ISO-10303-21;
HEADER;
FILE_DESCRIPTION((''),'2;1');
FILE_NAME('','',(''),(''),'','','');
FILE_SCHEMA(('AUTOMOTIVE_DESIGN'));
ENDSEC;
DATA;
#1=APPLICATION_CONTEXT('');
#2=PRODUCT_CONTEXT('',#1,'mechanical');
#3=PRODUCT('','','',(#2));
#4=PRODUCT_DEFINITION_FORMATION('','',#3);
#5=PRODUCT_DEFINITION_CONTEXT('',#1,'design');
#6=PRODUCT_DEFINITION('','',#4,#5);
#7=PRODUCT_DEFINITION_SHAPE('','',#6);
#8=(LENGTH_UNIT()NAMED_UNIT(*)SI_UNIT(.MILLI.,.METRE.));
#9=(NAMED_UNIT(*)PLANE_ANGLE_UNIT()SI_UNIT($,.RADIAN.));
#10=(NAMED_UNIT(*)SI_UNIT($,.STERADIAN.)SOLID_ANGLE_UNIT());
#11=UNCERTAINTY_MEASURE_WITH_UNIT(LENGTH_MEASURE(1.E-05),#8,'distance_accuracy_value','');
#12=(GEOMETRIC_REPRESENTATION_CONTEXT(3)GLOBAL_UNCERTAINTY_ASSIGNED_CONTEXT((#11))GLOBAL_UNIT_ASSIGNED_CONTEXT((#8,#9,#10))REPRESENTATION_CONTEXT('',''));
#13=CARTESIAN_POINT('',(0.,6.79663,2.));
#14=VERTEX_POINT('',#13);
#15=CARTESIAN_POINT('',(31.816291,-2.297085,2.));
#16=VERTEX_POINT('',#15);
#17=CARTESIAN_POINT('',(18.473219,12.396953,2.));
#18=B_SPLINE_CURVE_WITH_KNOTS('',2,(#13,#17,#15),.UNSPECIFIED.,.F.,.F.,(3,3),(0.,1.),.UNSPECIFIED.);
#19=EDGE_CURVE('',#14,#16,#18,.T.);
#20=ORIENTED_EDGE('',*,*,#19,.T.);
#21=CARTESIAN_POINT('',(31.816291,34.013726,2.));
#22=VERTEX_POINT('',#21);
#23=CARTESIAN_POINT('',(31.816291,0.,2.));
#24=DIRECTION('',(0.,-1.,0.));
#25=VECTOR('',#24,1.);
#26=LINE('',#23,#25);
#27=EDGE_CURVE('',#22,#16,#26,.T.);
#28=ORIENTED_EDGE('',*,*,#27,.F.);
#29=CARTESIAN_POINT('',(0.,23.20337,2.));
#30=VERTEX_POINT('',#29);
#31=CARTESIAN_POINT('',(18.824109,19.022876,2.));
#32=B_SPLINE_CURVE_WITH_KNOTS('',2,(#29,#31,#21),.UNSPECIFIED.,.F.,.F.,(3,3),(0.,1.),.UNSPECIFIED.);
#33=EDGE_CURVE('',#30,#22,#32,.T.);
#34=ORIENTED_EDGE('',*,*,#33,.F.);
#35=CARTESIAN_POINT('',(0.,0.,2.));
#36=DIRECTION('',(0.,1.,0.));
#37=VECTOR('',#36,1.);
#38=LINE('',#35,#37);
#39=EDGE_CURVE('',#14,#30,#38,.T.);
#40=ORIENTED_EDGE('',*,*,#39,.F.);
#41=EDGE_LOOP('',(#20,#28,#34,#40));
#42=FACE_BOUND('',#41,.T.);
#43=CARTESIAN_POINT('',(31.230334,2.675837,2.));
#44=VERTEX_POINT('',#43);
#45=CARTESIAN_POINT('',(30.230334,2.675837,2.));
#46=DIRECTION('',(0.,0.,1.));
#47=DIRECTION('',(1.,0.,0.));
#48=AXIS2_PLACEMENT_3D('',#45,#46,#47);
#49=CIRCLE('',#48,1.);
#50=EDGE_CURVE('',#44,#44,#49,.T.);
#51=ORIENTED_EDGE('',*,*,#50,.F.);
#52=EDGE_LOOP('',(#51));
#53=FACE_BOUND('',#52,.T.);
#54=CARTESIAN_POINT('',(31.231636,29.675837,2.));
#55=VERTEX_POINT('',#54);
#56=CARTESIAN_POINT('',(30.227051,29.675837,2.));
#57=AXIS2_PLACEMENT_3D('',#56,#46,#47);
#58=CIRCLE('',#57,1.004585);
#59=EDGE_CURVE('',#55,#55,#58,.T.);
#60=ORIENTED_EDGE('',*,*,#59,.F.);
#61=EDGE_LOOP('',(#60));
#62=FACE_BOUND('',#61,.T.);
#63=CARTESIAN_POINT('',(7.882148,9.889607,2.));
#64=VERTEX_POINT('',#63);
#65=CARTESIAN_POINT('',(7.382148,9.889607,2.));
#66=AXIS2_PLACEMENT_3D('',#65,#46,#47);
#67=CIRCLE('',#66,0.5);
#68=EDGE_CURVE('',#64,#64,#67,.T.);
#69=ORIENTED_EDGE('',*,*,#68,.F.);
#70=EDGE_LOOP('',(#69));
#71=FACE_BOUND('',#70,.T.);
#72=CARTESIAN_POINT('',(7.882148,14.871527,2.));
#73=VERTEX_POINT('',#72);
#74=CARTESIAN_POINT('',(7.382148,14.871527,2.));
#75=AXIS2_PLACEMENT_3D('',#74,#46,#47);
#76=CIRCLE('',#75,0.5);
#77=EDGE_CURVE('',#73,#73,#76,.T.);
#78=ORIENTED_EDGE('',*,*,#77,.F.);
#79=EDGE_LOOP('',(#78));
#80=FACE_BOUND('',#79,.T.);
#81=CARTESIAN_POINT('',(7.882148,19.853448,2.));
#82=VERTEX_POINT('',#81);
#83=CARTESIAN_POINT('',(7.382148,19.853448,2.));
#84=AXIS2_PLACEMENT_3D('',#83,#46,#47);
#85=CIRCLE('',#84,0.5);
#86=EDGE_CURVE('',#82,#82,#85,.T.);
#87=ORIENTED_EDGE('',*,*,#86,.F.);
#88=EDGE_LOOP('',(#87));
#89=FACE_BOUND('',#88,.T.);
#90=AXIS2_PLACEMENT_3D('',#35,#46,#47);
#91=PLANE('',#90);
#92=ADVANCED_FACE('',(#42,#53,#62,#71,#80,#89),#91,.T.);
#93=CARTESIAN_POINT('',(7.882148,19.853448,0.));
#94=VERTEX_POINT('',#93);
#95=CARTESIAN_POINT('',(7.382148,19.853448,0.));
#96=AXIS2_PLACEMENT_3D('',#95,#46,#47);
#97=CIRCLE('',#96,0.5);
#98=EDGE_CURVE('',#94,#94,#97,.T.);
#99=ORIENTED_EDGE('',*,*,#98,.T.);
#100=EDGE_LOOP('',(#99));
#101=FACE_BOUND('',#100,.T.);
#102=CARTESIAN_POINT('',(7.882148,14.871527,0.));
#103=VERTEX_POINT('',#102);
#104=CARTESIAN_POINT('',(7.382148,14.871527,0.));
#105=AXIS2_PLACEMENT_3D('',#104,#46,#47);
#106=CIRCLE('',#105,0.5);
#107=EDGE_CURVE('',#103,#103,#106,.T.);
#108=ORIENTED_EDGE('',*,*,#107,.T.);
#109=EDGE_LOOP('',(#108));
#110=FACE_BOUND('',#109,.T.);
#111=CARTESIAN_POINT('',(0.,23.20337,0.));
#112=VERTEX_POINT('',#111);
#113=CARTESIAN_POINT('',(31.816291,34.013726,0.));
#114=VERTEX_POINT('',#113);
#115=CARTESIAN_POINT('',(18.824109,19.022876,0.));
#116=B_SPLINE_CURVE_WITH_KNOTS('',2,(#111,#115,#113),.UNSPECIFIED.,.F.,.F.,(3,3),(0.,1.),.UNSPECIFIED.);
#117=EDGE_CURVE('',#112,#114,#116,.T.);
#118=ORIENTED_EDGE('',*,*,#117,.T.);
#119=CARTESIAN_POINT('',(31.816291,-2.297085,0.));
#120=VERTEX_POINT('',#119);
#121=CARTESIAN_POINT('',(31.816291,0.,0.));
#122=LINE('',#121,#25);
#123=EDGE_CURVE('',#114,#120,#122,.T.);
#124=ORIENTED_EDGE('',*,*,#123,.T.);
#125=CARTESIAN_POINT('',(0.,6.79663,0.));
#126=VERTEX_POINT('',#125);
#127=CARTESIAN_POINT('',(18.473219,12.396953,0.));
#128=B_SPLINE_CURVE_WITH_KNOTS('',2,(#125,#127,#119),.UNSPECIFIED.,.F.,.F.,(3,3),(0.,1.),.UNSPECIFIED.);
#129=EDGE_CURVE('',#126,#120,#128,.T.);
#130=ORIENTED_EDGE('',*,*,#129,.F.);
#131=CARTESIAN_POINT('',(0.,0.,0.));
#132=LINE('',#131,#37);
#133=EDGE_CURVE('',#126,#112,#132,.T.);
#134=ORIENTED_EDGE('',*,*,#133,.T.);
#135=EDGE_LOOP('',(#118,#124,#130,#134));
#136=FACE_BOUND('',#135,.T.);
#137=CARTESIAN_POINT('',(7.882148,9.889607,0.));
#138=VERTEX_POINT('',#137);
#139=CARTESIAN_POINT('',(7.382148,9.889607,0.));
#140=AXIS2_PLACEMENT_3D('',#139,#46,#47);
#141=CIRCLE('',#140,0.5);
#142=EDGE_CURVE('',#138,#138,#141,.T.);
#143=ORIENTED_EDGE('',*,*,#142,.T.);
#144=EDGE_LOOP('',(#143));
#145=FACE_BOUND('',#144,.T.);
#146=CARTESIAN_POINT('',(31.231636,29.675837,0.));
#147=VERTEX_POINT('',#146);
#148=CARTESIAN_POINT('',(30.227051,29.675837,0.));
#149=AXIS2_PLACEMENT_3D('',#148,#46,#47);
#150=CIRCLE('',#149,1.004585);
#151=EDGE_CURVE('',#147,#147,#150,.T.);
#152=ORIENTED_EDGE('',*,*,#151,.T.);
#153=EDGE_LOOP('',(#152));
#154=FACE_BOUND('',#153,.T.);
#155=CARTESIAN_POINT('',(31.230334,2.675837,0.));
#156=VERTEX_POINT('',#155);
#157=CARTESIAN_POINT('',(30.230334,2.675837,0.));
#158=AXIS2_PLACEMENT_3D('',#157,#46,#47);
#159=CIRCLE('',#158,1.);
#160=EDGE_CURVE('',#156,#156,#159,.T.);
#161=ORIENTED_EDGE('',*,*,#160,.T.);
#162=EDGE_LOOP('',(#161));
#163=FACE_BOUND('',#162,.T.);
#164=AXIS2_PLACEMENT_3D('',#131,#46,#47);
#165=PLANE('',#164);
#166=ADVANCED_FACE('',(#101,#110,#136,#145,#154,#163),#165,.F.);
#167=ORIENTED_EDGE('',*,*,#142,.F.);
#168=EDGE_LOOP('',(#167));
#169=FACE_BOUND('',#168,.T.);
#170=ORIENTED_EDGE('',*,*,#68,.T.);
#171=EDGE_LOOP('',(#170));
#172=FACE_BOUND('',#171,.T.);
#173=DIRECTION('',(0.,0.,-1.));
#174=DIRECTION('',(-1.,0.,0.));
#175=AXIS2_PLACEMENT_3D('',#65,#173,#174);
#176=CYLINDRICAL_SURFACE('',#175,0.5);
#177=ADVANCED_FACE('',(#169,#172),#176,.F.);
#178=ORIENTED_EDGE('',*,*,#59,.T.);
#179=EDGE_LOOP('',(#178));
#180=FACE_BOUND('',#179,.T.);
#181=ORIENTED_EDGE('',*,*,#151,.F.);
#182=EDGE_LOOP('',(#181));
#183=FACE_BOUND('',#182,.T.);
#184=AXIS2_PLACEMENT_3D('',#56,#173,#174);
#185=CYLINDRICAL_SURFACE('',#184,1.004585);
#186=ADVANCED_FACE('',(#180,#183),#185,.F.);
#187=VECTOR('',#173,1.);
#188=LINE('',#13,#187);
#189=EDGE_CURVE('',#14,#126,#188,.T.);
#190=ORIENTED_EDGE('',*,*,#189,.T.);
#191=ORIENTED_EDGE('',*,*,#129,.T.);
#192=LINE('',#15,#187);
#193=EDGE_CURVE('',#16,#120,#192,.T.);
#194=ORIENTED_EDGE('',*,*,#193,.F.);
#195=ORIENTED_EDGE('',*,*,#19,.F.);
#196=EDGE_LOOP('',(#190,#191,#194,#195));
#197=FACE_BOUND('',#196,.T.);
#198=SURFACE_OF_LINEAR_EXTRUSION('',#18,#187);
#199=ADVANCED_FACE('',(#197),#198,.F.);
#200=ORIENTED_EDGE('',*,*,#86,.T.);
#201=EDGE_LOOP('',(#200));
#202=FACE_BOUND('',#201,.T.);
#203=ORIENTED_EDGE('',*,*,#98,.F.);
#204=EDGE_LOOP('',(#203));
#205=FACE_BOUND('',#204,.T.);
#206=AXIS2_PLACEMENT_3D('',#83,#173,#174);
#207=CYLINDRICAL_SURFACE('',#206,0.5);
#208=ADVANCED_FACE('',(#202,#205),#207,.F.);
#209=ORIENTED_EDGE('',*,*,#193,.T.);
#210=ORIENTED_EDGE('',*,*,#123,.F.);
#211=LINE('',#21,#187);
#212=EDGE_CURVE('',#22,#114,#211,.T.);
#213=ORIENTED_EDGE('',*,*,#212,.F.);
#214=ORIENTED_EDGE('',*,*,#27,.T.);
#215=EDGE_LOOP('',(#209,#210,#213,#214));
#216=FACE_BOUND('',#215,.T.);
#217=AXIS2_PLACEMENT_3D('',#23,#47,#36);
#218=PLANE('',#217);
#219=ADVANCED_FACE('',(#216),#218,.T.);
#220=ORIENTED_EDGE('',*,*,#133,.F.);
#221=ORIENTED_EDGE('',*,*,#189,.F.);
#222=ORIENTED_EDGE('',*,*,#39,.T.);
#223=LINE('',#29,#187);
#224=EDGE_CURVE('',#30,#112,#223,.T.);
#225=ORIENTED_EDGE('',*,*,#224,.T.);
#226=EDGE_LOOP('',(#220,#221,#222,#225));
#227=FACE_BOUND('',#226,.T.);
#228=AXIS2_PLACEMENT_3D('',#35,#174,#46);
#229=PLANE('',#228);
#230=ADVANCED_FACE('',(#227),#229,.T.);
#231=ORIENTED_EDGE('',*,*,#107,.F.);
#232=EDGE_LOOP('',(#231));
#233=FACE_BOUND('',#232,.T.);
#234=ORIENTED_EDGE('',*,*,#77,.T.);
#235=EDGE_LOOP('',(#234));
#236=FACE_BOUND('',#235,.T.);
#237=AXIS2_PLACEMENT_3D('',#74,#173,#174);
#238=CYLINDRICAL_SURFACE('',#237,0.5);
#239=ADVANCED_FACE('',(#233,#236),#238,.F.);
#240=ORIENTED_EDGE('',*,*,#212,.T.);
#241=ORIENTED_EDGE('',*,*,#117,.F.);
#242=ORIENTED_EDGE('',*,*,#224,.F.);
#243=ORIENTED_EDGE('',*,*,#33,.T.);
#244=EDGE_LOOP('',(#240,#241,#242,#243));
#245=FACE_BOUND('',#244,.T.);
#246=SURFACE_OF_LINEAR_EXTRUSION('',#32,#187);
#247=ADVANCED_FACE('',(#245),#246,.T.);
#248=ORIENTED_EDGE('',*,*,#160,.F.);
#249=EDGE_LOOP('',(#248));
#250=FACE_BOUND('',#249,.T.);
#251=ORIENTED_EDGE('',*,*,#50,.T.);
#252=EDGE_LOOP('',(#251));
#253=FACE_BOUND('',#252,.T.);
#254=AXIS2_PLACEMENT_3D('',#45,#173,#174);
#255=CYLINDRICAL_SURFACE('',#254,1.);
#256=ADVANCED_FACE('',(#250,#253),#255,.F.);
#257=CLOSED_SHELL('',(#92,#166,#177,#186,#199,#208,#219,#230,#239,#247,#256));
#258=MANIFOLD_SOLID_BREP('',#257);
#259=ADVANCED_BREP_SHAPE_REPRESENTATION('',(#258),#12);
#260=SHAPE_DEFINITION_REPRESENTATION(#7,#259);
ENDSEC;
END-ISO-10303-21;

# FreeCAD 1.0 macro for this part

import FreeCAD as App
import Part
import Sketcher
Q = App.Units.Quantity

doc = App.newDocument("Part")
body = doc.addObject("PartDesign::Body", "Body")

# Sketch on XY plane
sketch1 = body.newObject("Sketcher::SketchObject", "Sketch")
sketch1.AttachmentSupport = (doc.getObject("XY_Plane"), [""])
sketch1.MapMode = "FlatFace"
sketch1.addGeometry(Part.LineSegment(App.Vector(0, 23.20337, 0), App.Vector(0, 6.79663, 0)), False)
sketch1.addGeometry(Part.BSplineCurve([App.Vector(0, 6.79663, 0), App.Vector(18.473219, 12.396953, 0), App.Vector(31.816291, -2.297085, 0)], [3, 3], [0, 1], False, 2, [1, 1, 1], False), False)
sketch1.addGeometry(Part.LineSegment(App.Vector(31.816291, -2.297085, 0), App.Vector(31.816291, 34.013726, 0)), False)
sketch1.addGeometry(Part.BSplineCurve([App.Vector(0, 23.20337, 0), App.Vector(18.824109, 19.022876, 0), App.Vector(31.816291, 34.013726, 0)], [3, 3], [0, 1], False, 2, [1, 1, 1], False), False)
sketch1.addGeometry(Part.Circle(App.Vector(30.230334, 2.675837, 0), App.Vector(0, 0, 1), 1), False)
sketch1.addGeometry(Part.Circle(App.Vector(7.382148, 9.889607, 0), App.Vector(0, 0, 1), 0.5), False)
sketch1.addGeometry(Part.Circle(App.Vector(7.382148, 14.871527, 0), App.Vector(0, 0, 1), 0.5), False)
sketch1.addGeometry(Part.Circle(App.Vector(30.227051, 29.675837, 0), App.Vector(0, 0, 1), 1.004585), False)
sketch1.addGeometry(Part.Circle(App.Vector(7.382148, 19.853448, 0), App.Vector(0, 0, 1), 0.5), False)
sketch1.addConstraint(Sketcher.Constraint("Block", 1))
sketch1.addConstraint(Sketcher.Constraint("Block", 3))
sketch1.addConstraint(Sketcher.Constraint("Coincident", 0, 2, 1, 1))
sketch1.addConstraint(Sketcher.Constraint("Coincident", 1, 2, 2, 1))
sketch1.addConstraint(Sketcher.Constraint("Coincident", 2, 2, 3, 2))
sketch1.addConstraint(Sketcher.Constraint("Coincident", 3, 1, 0, 1))
sketch1.addConstraint(Sketcher.Constraint("Equal", 5, 6))
sketch1.addConstraint(Sketcher.Constraint("Equal", 6, 8))
sketch1.addConstraint(Sketcher.Constraint("Vertical", 5, 3, 6, 3))
sketch1.addConstraint(Sketcher.Constraint("Vertical", 6, 3, 8, 3))
sketch1.addConstraint(Sketcher.Constraint("Diameter", 4, Q("2 mm")))
sketch1.addConstraint(Sketcher.Constraint("Diameter", 5, Q("1 mm")))
sketch1.addConstraint(Sketcher.Constraint("DistanceY", 4, 3, 7, 3, Q("27 mm")))
sketch1.addConstraint(Sketcher.Constraint("Diameter", 7, Q("2.009169 mm")))
sketch1.addConstraint(Sketcher.Constraint("DistanceY", 6, 3, 2, 2, Q("19.142199 mm")))
sketch1.addConstraint(Sketcher.Constraint("DistanceX", -1, 1, 7, 3, Q("30.227051 mm")))
sketch1.addConstraint(Sketcher.Constraint("DistanceY", -1, 1, 8, 3, Q("19.853448 mm")))
sketch1.addConstraint(Sketcher.Constraint("DistanceY", 4, 3, 5, 3, Q("7.21377 mm")))
sketch1.addConstraint(Sketcher.Constraint("DistanceY", 5, 3, 6, 3, Q("4.981921 mm")))
sketch1.addConstraint(Sketcher.Constraint("DistanceX", -1, 1, 4, 3, Q("30.230334 mm")))
sketch1.addConstraint(Sketcher.Constraint("DistanceX", -1, 1, 5, 3, Q("7.382148 mm")))
pad1 = body.newObject("PartDesign::Pad", "Pad")
pad1.Profile = sketch1
pad1.Length = 2

doc.recompute()
